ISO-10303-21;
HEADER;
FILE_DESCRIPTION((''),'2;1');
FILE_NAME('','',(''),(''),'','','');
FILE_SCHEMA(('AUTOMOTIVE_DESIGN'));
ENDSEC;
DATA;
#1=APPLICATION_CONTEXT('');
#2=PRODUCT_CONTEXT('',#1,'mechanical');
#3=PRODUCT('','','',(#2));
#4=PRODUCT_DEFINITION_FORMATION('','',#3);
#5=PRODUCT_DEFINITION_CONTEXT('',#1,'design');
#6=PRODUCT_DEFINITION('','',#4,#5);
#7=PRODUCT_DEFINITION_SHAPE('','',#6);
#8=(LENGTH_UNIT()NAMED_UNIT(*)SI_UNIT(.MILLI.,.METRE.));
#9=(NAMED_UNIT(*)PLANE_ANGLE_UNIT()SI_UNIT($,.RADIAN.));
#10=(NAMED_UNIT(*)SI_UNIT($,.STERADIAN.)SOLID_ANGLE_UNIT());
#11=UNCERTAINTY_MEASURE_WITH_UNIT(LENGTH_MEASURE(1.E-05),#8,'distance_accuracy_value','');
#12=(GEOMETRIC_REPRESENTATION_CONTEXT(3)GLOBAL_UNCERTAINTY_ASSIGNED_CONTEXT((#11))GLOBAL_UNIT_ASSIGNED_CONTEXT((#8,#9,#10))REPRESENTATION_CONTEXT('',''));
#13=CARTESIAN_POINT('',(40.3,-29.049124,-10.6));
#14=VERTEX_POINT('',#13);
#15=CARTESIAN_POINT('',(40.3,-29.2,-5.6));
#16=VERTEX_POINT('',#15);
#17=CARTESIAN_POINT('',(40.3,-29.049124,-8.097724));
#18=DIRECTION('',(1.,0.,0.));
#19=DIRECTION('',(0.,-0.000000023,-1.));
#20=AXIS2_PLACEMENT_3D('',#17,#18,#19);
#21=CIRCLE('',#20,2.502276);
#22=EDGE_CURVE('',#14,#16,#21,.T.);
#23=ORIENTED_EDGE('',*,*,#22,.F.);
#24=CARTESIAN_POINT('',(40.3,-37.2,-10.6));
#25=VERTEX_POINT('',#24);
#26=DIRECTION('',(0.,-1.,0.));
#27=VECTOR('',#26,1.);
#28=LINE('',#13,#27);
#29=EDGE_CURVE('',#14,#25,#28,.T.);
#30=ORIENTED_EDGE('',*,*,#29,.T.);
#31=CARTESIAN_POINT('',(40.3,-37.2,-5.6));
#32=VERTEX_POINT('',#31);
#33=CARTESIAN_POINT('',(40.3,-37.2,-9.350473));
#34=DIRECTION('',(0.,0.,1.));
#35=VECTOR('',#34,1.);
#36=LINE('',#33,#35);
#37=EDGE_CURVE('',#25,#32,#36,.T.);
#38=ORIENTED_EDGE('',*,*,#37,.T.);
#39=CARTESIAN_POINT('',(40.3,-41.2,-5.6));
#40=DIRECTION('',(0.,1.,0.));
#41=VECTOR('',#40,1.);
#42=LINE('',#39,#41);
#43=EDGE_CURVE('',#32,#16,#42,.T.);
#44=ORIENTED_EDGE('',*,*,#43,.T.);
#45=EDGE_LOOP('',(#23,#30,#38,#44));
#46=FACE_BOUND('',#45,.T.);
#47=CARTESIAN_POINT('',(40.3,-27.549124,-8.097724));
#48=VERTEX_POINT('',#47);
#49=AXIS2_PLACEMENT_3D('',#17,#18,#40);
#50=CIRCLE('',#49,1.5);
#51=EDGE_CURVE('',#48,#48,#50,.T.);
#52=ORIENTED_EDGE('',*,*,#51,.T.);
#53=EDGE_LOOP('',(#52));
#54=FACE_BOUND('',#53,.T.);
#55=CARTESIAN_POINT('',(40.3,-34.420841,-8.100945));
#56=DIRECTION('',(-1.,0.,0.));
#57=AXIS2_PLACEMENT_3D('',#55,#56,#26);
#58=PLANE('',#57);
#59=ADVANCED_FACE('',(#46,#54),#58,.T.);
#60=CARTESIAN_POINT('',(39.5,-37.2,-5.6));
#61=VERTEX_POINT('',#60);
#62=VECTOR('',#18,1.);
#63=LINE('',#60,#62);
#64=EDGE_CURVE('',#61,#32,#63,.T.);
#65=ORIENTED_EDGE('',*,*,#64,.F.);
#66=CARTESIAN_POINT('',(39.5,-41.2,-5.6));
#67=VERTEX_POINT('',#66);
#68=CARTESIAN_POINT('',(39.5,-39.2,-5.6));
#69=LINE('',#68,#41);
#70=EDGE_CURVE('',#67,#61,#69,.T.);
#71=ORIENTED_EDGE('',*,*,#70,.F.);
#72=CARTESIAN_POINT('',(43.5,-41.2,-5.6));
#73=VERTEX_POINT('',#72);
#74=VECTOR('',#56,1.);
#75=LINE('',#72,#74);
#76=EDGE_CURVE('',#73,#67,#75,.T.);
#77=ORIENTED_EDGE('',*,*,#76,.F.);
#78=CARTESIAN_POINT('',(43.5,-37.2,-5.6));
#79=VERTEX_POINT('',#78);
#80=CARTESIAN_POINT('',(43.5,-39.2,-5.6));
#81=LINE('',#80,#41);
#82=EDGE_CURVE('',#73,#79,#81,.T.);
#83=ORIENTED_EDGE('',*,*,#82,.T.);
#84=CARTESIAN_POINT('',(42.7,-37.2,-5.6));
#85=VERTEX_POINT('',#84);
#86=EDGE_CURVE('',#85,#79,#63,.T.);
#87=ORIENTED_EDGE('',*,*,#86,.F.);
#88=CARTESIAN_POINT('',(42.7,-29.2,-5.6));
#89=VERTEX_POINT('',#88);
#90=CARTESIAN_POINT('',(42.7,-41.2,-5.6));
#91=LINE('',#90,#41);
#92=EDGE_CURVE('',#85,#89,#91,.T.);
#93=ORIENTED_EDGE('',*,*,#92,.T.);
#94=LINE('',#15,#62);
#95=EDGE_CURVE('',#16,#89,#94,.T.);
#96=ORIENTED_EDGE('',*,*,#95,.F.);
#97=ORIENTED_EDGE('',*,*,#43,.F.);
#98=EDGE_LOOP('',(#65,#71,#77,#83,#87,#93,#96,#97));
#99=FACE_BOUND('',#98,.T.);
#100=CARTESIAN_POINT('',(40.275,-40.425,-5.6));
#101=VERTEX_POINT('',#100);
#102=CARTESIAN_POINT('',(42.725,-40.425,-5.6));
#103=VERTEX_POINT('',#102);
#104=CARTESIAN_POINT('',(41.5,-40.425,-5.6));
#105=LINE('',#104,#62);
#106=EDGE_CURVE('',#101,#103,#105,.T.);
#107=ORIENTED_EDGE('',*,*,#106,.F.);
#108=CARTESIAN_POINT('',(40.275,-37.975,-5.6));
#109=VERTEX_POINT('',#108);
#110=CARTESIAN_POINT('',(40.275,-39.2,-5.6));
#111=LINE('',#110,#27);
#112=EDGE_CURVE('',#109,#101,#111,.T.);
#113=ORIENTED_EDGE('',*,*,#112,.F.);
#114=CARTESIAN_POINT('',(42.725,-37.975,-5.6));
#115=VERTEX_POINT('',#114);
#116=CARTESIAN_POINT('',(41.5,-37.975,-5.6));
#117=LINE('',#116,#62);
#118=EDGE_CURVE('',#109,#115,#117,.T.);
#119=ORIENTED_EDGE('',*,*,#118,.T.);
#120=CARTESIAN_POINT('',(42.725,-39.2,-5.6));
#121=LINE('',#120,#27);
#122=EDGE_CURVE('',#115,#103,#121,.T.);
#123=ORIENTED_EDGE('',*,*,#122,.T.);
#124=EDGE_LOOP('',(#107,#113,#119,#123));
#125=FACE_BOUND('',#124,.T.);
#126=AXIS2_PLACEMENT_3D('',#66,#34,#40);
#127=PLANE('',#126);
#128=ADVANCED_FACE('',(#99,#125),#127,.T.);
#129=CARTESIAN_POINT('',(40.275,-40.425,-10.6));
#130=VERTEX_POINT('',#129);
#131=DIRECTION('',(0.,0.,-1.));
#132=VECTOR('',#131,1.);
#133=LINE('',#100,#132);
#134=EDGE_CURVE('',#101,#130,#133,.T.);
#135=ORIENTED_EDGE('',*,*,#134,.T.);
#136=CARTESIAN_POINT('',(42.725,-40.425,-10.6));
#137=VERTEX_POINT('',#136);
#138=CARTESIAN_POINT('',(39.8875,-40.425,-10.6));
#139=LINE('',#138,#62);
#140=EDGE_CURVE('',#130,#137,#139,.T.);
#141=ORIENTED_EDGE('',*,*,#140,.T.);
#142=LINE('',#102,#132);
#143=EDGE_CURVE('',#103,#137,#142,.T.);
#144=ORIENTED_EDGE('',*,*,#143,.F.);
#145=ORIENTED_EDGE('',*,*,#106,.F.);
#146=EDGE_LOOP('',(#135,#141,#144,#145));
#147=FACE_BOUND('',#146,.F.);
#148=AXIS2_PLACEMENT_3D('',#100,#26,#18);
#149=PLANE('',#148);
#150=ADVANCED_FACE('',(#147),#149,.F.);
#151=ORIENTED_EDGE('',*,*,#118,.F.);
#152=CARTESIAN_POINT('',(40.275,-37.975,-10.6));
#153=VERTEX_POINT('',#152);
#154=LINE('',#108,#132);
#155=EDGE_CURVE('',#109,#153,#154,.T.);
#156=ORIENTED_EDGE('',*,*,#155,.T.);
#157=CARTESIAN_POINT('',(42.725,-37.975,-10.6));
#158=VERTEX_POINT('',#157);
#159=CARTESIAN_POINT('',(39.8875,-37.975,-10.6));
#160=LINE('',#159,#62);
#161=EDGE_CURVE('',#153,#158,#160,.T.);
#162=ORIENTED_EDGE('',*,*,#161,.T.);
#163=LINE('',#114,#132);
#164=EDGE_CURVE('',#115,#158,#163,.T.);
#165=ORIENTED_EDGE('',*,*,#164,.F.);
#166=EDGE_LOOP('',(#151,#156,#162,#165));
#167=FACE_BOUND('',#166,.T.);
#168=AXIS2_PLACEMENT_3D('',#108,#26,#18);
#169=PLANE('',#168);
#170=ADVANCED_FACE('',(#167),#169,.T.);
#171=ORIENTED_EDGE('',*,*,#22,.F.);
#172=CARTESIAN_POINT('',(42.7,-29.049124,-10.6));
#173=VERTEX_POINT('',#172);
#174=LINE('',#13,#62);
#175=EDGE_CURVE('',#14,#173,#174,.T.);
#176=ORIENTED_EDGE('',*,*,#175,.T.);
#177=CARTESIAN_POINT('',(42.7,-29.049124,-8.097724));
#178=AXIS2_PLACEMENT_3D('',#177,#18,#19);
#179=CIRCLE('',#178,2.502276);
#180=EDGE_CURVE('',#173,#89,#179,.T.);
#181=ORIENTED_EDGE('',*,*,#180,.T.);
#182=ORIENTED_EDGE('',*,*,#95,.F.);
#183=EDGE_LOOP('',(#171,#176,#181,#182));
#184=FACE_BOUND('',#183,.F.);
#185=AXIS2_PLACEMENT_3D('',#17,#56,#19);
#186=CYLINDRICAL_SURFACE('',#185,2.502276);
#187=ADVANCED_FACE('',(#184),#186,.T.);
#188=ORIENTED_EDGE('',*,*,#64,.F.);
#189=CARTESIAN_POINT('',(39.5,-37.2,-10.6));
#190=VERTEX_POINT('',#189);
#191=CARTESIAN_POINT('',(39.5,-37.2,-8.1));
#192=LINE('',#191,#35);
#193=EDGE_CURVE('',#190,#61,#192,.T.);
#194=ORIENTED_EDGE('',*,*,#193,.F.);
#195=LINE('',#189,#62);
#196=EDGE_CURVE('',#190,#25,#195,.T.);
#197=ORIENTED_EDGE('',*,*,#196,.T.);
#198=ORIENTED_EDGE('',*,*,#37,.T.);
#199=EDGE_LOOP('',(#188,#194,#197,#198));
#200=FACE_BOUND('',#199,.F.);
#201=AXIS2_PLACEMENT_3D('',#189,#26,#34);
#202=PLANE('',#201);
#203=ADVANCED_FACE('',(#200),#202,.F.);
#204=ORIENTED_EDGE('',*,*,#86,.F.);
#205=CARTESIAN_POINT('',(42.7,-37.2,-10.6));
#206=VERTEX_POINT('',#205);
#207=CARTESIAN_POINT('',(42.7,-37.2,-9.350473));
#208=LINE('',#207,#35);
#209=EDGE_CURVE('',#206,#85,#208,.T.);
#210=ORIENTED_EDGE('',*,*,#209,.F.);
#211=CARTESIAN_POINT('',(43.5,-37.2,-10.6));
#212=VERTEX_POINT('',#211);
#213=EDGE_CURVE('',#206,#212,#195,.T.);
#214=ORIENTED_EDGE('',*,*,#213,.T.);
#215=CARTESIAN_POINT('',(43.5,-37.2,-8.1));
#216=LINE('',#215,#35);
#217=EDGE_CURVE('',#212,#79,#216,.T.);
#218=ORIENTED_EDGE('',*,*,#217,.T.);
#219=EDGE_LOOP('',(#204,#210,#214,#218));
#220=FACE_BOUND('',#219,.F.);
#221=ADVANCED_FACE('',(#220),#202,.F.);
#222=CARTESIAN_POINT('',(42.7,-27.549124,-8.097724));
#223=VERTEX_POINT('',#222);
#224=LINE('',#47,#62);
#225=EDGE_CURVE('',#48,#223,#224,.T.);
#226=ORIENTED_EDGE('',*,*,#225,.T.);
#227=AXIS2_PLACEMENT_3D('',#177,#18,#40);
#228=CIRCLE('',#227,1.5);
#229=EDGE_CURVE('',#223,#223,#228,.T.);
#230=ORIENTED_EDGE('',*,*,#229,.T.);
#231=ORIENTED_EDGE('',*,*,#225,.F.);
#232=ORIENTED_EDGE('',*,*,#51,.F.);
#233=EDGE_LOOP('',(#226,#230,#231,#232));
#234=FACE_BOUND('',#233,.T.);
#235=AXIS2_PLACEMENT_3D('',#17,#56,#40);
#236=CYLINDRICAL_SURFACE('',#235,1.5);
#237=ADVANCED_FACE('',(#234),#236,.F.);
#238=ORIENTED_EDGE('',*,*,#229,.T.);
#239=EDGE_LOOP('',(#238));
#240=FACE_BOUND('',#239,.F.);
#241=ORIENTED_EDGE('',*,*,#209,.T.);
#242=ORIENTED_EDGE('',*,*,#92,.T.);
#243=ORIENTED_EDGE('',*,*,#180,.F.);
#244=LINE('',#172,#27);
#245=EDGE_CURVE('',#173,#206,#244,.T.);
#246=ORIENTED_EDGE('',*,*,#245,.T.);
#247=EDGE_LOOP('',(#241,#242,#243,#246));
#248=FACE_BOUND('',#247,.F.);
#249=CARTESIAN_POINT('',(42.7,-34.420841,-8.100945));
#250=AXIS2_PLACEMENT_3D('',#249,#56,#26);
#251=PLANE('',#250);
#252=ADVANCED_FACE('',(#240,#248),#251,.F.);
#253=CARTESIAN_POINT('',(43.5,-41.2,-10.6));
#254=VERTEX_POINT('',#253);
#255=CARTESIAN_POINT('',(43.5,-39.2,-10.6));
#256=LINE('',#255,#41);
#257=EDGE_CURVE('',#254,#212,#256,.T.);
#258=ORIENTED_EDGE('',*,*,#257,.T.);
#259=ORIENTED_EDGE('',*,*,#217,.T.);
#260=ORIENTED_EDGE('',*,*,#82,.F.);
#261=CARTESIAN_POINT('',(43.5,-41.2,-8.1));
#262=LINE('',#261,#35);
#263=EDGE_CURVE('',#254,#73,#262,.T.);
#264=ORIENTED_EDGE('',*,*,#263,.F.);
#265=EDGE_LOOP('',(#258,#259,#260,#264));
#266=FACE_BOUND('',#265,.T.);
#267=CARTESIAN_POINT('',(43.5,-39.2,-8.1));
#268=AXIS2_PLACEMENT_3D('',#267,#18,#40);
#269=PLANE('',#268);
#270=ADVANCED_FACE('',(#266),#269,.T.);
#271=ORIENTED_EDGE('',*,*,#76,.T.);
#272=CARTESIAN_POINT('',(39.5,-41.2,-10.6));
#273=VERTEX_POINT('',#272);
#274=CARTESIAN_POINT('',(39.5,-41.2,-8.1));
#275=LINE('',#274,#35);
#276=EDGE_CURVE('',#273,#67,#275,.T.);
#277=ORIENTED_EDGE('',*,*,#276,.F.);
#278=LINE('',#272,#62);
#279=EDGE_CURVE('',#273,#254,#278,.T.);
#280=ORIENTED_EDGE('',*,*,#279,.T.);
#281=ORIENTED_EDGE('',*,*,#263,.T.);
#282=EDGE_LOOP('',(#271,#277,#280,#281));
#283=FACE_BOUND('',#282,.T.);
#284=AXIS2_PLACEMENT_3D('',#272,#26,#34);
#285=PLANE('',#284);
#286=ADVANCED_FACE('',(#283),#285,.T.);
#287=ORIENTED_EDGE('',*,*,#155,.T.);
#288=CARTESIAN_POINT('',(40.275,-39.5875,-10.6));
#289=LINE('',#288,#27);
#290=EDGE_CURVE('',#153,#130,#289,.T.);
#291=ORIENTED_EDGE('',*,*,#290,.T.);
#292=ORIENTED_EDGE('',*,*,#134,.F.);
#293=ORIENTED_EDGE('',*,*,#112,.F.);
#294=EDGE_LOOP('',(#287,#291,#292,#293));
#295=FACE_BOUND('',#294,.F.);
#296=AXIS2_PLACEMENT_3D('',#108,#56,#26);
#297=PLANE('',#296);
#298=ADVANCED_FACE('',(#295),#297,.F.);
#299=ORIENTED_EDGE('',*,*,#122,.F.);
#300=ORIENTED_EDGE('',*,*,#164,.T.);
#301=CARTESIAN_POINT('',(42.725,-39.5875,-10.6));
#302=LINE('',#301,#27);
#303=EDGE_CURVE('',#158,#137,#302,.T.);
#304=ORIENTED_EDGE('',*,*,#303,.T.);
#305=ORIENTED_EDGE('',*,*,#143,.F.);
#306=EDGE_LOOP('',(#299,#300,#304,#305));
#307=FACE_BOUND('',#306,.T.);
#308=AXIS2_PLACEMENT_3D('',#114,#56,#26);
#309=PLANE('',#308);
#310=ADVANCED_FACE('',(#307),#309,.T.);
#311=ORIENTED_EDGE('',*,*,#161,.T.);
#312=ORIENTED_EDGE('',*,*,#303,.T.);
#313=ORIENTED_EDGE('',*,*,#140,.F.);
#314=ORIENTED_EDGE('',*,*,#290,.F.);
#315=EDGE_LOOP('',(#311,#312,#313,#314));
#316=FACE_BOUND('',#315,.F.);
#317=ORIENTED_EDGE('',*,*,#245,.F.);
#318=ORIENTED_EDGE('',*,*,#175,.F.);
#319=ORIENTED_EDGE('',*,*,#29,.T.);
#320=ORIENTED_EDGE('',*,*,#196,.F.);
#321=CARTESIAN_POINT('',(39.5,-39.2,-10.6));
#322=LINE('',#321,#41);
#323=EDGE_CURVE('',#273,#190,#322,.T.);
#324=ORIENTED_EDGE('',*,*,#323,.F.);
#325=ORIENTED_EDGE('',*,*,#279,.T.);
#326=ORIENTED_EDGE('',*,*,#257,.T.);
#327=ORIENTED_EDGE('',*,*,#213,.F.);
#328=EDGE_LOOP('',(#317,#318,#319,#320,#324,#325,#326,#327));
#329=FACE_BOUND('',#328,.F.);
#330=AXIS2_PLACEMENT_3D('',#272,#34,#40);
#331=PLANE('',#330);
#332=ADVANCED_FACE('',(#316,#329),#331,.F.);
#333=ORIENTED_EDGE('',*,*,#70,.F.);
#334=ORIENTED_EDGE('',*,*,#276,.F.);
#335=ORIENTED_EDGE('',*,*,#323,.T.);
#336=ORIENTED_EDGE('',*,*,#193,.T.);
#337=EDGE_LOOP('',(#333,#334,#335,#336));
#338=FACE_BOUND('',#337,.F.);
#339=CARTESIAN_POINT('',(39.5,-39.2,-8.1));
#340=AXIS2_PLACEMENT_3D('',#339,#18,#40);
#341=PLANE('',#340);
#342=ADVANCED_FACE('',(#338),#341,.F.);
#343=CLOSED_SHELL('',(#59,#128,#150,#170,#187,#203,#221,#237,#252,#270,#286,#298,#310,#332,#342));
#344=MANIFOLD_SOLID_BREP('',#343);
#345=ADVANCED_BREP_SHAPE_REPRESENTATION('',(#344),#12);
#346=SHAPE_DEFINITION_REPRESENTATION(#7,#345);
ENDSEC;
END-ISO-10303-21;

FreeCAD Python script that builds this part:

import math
import FreeCAD as App
import Part
import Sketcher

V = App.Vector
Q = App.Units.Quantity


def add_polygon(sketch, points):
    """Adds a closed chain of lines whose ends are joined by coincident constraints."""
    first, n = sketch.GeometryCount, len(points)
    for a, b in zip(points, points[1:] + points[:1]):
        sketch.addGeometry(Part.LineSegment(App.Vector(*a, 0), App.Vector(*b, 0)), False)
    for i in range(n):
        sketch.addConstraint(Sketcher.Constraint("Coincident", first + i, 2, first + (i + 1) % n, 1))

doc = App.newDocument("Part")
body = doc.addObject("PartDesign::Body", "Body")

sketch1 = body.newObject("Sketcher::SketchObject", "Sketch")
sketch1.AttachmentSupport = (doc.getObject("XZ_Plane"), [""])
sketch1.MapMode = "FlatFace"
sketch1.addGeometry(Part.LineSegment(V(6, 5, 0), V(-6, 5, 0)), False)
sketch1.addGeometry(Part.LineSegment(V(-6, 5, 0), V(-6, 0, 0)), False)
sketch1.addGeometry(Part.LineSegment(V(-6, 0, 0), V(6.150876, 0, 0)), False)
sketch1.addGeometry(Part.ArcOfCircle(Part.Circle(V(6.150876, 2.502276, 0), V(0, 0, 1), 2.502276), math.radians(-90.000001), math.radians(93.456776)), False)
sketch1.addGeometry(Part.Circle(V(6.150876, 2.502276, 0), V(0, 0, 1), 1.5), False)
sketch1.addConstraint(Sketcher.Constraint("Coincident", 0, 2, 1, 1))
sketch1.addConstraint(Sketcher.Constraint("Coincident", 1, 2, 2, 1))
sketch1.addConstraint(Sketcher.Constraint("Tangent", 2, 2, 3, 1))
sketch1.addConstraint(Sketcher.Constraint("Coincident", 3, 2, 0, 1))
sketch1.addConstraint(Sketcher.Constraint("Horizontal", 0))
sketch1.addConstraint(Sketcher.Constraint("Vertical", 1))
sketch1.addConstraint(Sketcher.Constraint("Horizontal", 2))
sketch1.addConstraint(Sketcher.Constraint("Coincident", 4, 3, 3, 3))
sketch1.addConstraint(Sketcher.Constraint("PointOnObject", 1, 2, -1))
sketch1.addConstraint(Sketcher.Constraint("Diameter", 4, Q("3 mm")))
sketch1.addConstraint(Sketcher.Constraint("DistanceX", 0, 2, 0, 1, Q("12 mm")))
sketch1.addConstraint(Sketcher.Constraint("DistanceY", 1, 2, 1, 1, Q("5 mm")))
sketch1.addConstraint(Sketcher.Constraint("DistanceX", 0, 2, -1, 1, Q("6 mm")))
sketch1.addConstraint(Sketcher.Constraint("Radius", 3, Q("2.502276 mm")))
pad1 = body.newObject("PartDesign::Pad", "Pad")
pad1.Profile = sketch1
pad1.Length = 2.4

sketch2 = body.newObject("Sketcher::SketchObject", "Sketch001")
sketch2.AttachmentSupport = (doc.getObject("XZ_Plane"), [""])
sketch2.MapMode = "FlatFace"
sketch2.AttachmentOffset = App.Placement(V(0, 0, -0.8), App.Rotation())
add_polygon(sketch2, [(-6, 5), (-6, 0), (-2, 0), (-2, 5)])
sketch2.addConstraint(Sketcher.Constraint("Vertical", 0))
sketch2.addConstraint(Sketcher.Constraint("Horizontal", 1))
sketch2.addConstraint(Sketcher.Constraint("Vertical", 2))
sketch2.addConstraint(Sketcher.Constraint("Horizontal", 3))
sketch2.addConstraint(Sketcher.Constraint("PointOnObject", 0, 2, -1))
sketch2.addConstraint(Sketcher.Constraint("DistanceX", 1, 1, 1, 2, Q("4 mm")))
sketch2.addConstraint(Sketcher.Constraint("DistanceY", 0, 2, 0, 1, Q("5 mm")))
sketch2.addConstraint(Sketcher.Constraint("DistanceX", 0, 2, -1, 1, Q("6 mm")))
pad2 = body.newObject("PartDesign::Pad", "Pad001")
pad2.Profile = sketch2
pad2.Length = 4

sketch3 = body.newObject("Sketcher::SketchObject", "Sketch002")
sketch3.AttachmentSupport = (doc.getObject("XY_Plane"), [""])
sketch3.MapMode = "FlatFace"
sketch3.AttachmentOffset = App.Placement(V(0, 0, 5), App.Rotation())
add_polygon(sketch3, [(-2.775, -2.425), (-2.775, 0.025), (-5.225, 0.025), (-5.225, -2.425)])
sketch3.addConstraint(Sketcher.Constraint("Vertical", 0))
sketch3.addConstraint(Sketcher.Constraint("Horizontal", 1))
sketch3.addConstraint(Sketcher.Constraint("Vertical", 2))
sketch3.addConstraint(Sketcher.Constraint("Horizontal", 3))
sketch3.addConstraint(Sketcher.Constraint("Equal", 3, 0))
sketch3.addConstraint(Sketcher.Constraint("DistanceX", 1, 2, 1, 1, Q("2.45 mm")))
sketch3.addConstraint(Sketcher.Constraint("DistanceX", 0, 2, -1, 1, Q("2.775 mm")))
sketch3.addConstraint(Sketcher.Constraint("DistanceY", -1, 1, 0, 2, Q("0.025 mm")))
pocket1 = body.newObject("PartDesign::Pocket", "Pocket")
pocket1.Profile = sketch3
pocket1.Type = "ThroughAll"
body2 = doc.addObject("PartDesign::Body", "Body001")
doc.recompute()

body.Placement = App.Placement(V(40.3, -35.2, -10.6), App.Rotation(V(0, 0, 1), 90))
boolean = body2.newObject("PartDesign::Boolean", "Boolean")
boolean.Type = "Fuse"
boolean.addObjects([body])

doc.recompute()
